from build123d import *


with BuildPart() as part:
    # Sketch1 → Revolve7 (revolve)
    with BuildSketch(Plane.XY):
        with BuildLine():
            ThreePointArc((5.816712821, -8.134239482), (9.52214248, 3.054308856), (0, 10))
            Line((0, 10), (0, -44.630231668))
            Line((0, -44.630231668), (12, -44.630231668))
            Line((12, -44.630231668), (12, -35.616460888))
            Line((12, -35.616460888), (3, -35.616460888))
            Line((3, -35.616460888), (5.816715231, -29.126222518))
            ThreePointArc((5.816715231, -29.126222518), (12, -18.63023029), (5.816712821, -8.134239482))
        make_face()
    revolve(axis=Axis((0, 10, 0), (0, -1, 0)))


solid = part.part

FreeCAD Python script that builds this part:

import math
import FreeCAD as App
import Part
import Sketcher
from FreeCAD import Vector
Q = App.Units.Quantity

doc = App.newDocument("Part")
body = doc.addObject("PartDesign::Body", "Body")

sketch1 = body.newObject("Sketcher::SketchObject", "Sketch")
sketch1.AttachmentSupport = (doc.getObject("XY_Plane"), [""])
sketch1.MapMode = "FlatFace"
sketch1.addGeometry(Part.ArcOfCircle(Part.Circle(Vector(0, 0, 0), Vector(0, 0, 1), 10), math.radians(-54), math.radians(90)), False)
sketch1.addGeometry(Part.LineSegment(Vector(0, 10, 0), Vector(0, -45, 0)), False)
sketch1.addGeometry(Part.LineSegment(Vector(0, -45, 0), Vector(12, -45, 0)), False)
sketch1.addGeometry(Part.LineSegment(Vector(12, -45, 0), Vector(12, -36, 0)), False)
sketch1.addGeometry(Part.LineSegment(Vector(12, -36, 0), Vector(3, -36, 0)), False)
sketch1.addGeometry(Part.LineSegment(Vector(3, -36, 0), Vector(6, -29, 0)), False)
sketch1.addGeometry(Part.ArcOfCircle(Part.Circle(Vector(0, -19, 0), Vector(0, 0, 1), 12), math.radians(-61), math.radians(61)), False)
sketch1.addConstraint(Sketcher.Constraint("Coincident", 0, 2, 1, 1))
sketch1.addConstraint(Sketcher.Constraint("Coincident", 1, 2, 2, 1))
sketch1.addConstraint(Sketcher.Constraint("Coincident", 2, 2, 3, 1))
sketch1.addConstraint(Sketcher.Constraint("Coincident", 3, 2, 4, 1))
sketch1.addConstraint(Sketcher.Constraint("Coincident", 4, 2, 5, 1))
sketch1.addConstraint(Sketcher.Constraint("Coincident", 5, 2, 6, 1))
sketch1.addConstraint(Sketcher.Constraint("Coincident", 6, 2, 0, 1))
sketch1.addConstraint(Sketcher.Constraint("Vertical", 1))
sketch1.addConstraint(Sketcher.Constraint("Horizontal", 2))
sketch1.addConstraint(Sketcher.Constraint("Vertical", 3))
sketch1.addConstraint(Sketcher.Constraint("Horizontal", 4))
sketch1.addConstraint(Sketcher.Constraint("Coincident", 0, 3, -1, 1))
sketch1.addConstraint(Sketcher.Constraint("PointOnObject", 6, 3, -2))
sketch1.addConstraint(Sketcher.Constraint("PointOnObject", 0, 2, -2))
sketch1.addConstraint(Sketcher.Constraint("Radius", 0, Q("10 mm")))
sketch1.addConstraint(Sketcher.Constraint("Radius", 6, Q("12 mm")))
sketch1.addConstraint(Sketcher.Constraint("DistanceX", 2, 1, 2, 2, Q("12 mm")))
sketch1.addConstraint(Sketcher.Constraint("DistanceX", 4, 2, 4, 1, Q("9 mm")))
sketch1.addConstraint(Sketcher.Constraint("DistanceY", 1, 2, 6, 3, Q("26 mm")))
sketch1.addConstraint(Sketcher.Constraint("DistanceY", 1, 2, 1, 1, Q("54.630232 mm")))
sketch1.addConstraint(Sketcher.Constraint("DistanceY", 3, 1, 3, 2, Q("9.013771 mm")))
sketch1.addConstraint(Sketcher.Constraint("DistanceY", 4, 2, 5, 2, Q("6.490238 mm")))
revolution = body.newObject("PartDesign::Revolution", "Revolution")
revolution.Profile = sketch1
revolution.ReferenceAxis = (sketch1, ["V_Axis"])
revolution.Angle = 360

doc.recompute()
